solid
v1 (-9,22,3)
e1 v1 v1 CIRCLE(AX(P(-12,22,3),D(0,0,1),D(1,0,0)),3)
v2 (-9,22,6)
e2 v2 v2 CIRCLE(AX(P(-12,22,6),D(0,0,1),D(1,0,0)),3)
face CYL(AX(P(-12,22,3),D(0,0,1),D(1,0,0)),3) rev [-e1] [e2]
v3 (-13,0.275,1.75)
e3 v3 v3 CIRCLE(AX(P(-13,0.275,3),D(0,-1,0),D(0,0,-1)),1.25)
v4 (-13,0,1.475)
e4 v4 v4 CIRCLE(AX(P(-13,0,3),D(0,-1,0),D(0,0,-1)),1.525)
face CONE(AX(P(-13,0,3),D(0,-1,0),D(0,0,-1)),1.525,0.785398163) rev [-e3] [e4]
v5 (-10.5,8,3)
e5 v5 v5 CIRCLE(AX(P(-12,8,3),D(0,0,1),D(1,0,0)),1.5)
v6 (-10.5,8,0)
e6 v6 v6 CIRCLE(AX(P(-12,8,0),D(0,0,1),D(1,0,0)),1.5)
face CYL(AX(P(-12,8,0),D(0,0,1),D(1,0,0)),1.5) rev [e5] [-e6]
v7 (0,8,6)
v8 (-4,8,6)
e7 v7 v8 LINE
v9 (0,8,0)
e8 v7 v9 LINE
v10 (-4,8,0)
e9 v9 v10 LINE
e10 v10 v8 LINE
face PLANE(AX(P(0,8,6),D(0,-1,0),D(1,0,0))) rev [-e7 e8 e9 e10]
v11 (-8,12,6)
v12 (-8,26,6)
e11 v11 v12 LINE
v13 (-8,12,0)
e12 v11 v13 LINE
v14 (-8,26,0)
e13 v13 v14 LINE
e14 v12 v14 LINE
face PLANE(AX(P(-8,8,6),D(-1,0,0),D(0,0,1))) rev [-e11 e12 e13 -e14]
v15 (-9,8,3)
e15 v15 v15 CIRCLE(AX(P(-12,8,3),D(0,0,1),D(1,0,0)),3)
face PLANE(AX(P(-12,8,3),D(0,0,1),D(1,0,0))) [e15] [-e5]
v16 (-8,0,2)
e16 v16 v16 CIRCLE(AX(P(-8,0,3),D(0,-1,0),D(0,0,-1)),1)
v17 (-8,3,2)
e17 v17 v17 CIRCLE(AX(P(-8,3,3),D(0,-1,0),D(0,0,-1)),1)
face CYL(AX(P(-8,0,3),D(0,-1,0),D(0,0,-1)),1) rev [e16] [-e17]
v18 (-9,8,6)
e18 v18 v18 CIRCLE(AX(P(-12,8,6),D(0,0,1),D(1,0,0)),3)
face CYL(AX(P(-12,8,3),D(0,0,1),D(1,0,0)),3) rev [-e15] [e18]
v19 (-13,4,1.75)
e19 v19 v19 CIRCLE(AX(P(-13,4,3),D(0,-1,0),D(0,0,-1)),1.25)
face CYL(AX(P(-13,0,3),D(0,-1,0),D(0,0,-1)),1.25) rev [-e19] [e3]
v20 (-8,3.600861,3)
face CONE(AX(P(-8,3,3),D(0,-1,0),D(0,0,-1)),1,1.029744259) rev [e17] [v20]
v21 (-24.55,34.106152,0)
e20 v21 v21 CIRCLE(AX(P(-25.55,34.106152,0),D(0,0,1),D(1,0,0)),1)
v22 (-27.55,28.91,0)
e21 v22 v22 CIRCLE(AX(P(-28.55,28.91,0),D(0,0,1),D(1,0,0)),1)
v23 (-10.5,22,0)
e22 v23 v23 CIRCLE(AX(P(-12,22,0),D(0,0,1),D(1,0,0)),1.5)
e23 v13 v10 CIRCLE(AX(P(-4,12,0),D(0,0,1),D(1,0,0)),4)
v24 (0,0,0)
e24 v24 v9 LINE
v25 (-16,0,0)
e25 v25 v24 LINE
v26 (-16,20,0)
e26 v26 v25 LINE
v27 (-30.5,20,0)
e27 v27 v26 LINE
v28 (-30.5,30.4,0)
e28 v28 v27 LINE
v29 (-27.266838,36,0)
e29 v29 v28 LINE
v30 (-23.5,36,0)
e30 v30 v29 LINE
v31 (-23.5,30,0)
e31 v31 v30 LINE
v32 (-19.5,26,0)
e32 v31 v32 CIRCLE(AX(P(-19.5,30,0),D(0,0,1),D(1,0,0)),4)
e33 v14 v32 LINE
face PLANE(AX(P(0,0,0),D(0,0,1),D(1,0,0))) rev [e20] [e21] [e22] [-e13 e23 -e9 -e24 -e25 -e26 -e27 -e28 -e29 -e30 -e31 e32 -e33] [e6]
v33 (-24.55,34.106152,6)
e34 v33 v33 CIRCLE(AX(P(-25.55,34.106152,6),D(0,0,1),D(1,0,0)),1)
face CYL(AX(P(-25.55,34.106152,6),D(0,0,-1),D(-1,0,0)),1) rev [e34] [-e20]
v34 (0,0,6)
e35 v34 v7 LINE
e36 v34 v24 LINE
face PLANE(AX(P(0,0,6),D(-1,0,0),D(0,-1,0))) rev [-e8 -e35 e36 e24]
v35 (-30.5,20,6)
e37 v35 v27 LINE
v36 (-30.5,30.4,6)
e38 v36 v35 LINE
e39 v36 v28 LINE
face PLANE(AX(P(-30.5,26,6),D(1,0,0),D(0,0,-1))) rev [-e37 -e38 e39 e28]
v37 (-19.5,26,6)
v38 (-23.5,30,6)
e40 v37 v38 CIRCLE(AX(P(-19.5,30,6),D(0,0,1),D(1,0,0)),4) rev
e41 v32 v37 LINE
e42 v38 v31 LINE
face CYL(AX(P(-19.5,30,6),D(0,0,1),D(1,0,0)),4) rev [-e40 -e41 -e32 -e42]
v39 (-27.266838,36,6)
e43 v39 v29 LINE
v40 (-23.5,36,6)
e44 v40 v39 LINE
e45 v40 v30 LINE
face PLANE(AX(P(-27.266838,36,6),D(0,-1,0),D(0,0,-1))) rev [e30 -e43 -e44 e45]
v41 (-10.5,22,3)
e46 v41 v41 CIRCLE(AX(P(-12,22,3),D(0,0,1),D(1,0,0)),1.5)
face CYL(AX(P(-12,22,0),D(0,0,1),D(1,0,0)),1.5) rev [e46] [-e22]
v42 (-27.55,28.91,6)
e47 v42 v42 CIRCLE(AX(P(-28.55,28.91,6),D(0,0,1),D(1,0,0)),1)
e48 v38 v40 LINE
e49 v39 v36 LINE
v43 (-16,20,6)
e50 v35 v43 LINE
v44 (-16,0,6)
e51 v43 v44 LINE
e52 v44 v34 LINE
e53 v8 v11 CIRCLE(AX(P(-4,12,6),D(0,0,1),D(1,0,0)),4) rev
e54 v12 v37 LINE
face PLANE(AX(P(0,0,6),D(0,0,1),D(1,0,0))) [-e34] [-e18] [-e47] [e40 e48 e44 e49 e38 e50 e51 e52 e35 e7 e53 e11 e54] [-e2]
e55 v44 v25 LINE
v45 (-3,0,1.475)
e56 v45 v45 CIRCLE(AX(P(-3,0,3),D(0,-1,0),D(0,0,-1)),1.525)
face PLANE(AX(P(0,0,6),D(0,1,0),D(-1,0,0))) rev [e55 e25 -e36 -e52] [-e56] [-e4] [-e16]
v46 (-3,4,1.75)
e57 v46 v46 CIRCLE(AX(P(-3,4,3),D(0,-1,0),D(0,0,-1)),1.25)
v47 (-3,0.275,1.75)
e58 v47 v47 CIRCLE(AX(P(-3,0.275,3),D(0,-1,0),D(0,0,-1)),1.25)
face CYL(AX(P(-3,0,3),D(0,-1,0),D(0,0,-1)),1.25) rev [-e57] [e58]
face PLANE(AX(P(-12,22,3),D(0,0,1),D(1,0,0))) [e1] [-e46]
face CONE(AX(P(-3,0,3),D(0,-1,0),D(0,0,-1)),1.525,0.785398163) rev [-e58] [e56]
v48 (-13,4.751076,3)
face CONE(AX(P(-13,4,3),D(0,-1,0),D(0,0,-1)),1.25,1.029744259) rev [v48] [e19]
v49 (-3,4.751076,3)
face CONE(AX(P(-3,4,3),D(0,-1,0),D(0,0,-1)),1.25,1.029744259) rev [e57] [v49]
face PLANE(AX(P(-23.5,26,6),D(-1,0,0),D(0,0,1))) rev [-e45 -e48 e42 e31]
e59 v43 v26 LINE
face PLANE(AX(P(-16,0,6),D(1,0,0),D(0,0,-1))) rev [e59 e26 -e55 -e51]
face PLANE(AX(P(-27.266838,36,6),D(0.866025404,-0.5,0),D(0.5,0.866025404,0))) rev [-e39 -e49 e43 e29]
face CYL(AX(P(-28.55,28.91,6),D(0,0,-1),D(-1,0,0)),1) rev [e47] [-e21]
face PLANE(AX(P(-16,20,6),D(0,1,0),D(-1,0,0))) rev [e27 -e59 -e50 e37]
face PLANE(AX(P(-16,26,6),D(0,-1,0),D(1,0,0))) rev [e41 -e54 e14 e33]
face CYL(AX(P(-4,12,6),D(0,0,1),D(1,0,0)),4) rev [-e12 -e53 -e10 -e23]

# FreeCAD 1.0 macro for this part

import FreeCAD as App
import Part
import Sketcher
from FreeCAD import Vector
Q = App.Units.Quantity


def edges_at(feature, points):
    """Names of the edges that pass closest to the given points."""
    edges = feature.Shape.Edges
    near = lambda p: min(range(len(edges)), key=lambda i: edges[i].distToShape(Part.Vertex(*p))[0])
    return sorted({f"Edge{near(p) + 1}" for p in points})

doc = App.newDocument("Part")
params = doc.addObject("Spreadsheet::Sheet", "Params")
for row, (alias, value) in enumerate([
    ("sketch1_diameter", "2 mm"),
    ("sketch1_width", "16 mm"),
    ("sketch1_width2", "8 mm"),
    ("sketch1_height", "20 mm"),
    ("sketch1_height2", "18 mm"),
    ("pad1_length", "6 mm"),
    ("fillet_radius", "4 mm"),
    ("fillet2_radius", "4 mm"),
    ("sketch2_diameter", "6 mm"),
    ("pocket1_length", "3 mm"),
    ("sketch3_diameter", "3 mm"),
    ("sketch4_diameter", "2.5 mm"),
    ("hole_diameter", "2.5 mm"),
    ("hole_depth", "4 mm"),
    ("hole_csink_diameter", "3.05 mm"),
    ("sketch5_diameter", "2 mm"),
    ("hole2_diameter", "2 mm"),
    ("hole2_depth", "3 mm"),
], start=1):
    params.set(f"A{row}", alias)
    params.set(f"B{row}", "=" + value)
    params.setAlias(f"B{row}", alias)

body = doc.addObject("PartDesign::Body", "Body")

# Sketch on XY plane
sketch1 = body.newObject("Sketcher::SketchObject", "Sketch")
sketch1.AttachmentSupport = (doc.getObject("XY_Plane"), [""])
sketch1.MapMode = "FlatFace"
sketch1.addGeometry(Part.LineSegment(Vector(-27.3, 36, 0), Vector(-30.5, 30.4, 0)), False)
sketch1.addGeometry(Part.LineSegment(Vector(-30.5, 30.4, 0), Vector(-30.5, 20, 0)), False)
sketch1.addGeometry(Part.LineSegment(Vector(-30.5, 20, 0), Vector(-16, 20, 0)), False)
sketch1.addGeometry(Part.LineSegment(Vector(-16, 20, 0), Vector(-16, 0, 0)), False)
sketch1.addGeometry(Part.LineSegment(Vector(-16, 0, 0), Vector(0, 0, 0)), False)
sketch1.addGeometry(Part.LineSegment(Vector(0, 0, 0), Vector(0, 8, 0)), False)
sketch1.addGeometry(Part.LineSegment(Vector(0, 8, 0), Vector(-8, 8, 0)), False)
sketch1.addGeometry(Part.LineSegment(Vector(-8, 8, 0), Vector(-8, 26, 0)), False)
sketch1.addGeometry(Part.LineSegment(Vector(-8, 26, 0), Vector(-23.5, 26, 0)), False)
sketch1.addGeometry(Part.LineSegment(Vector(-23.5, 26, 0), Vector(-23.5, 36, 0)), False)
sketch1.addGeometry(Part.LineSegment(Vector(-23.5, 36, 0), Vector(-27.3, 36, 0)), False)
sketch1.addGeometry(Part.Circle(Vector(-28.6, 28.9, 0), Vector(0, 0, 1), 1), False)
sketch1.addGeometry(Part.Circle(Vector(-25.6, 34.1, 0), Vector(0, 0, 1), 1), False)
sketch1.addConstraint(Sketcher.Constraint("Coincident", 0, 2, 1, 1))
sketch1.addConstraint(Sketcher.Constraint("Coincident", 1, 2, 2, 1))
sketch1.addConstraint(Sketcher.Constraint("Coincident", 2, 2, 3, 1))
sketch1.addConstraint(Sketcher.Constraint("Coincident", 3, 2, 4, 1))
sketch1.addConstraint(Sketcher.Constraint("Coincident", 4, 2, 5, 1))
sketch1.addConstraint(Sketcher.Constraint("Coincident", 5, 2, 6, 1))
sketch1.addConstraint(Sketcher.Constraint("Coincident", 6, 2, 7, 1))
sketch1.addConstraint(Sketcher.Constraint("Coincident", 7, 2, 8, 1))
sketch1.addConstraint(Sketcher.Constraint("Coincident", 8, 2, 9, 1))
sketch1.addConstraint(Sketcher.Constraint("Coincident", 9, 2, 10, 1))
sketch1.addConstraint(Sketcher.Constraint("Coincident", 10, 2, 0, 1))
sketch1.addConstraint(Sketcher.Constraint("Vertical", 1))
sketch1.addConstraint(Sketcher.Constraint("Horizontal", 2))
sketch1.addConstraint(Sketcher.Constraint("Vertical", 3))
sketch1.addConstraint(Sketcher.Constraint("Horizontal", 4))
sketch1.addConstraint(Sketcher.Constraint("Vertical", 5))
sketch1.addConstraint(Sketcher.Constraint("Horizontal", 6))
sketch1.addConstraint(Sketcher.Constraint("Vertical", 7))
sketch1.addConstraint(Sketcher.Constraint("Horizontal", 8))
sketch1.addConstraint(Sketcher.Constraint("Vertical", 9))
sketch1.addConstraint(Sketcher.Constraint("Horizontal", 10))
sketch1.addConstraint(Sketcher.Constraint("Coincident", 4, 2, -1, 1))
sketch1.addConstraint(Sketcher.Constraint("Equal", 11, 12))
sketch1.addConstraint(Sketcher.Constraint("Equal", 6, 5))
sketch1.addConstraint(Sketcher.Constraint("Diameter", 11, Q("2 mm")))
sketch1.addConstraint(Sketcher.Constraint("DistanceX", 4, 1, 4, 2, Q("16 mm")))
sketch1.addConstraint(Sketcher.Constraint("DistanceX", 6, 2, 6, 1, Q("8 mm")))
sketch1.addConstraint(Sketcher.Constraint("DistanceY", 3, 2, 3, 1, Q("20 mm")))
sketch1.addConstraint(Sketcher.Constraint("DistanceY", 7, 1, 7, 2, Q("18 mm")))
sketch1.addConstraint(Sketcher.Constraint("DistanceY", 9, 1, 9, 2, Q("10 mm")))
sketch1.addConstraint(Sketcher.Constraint("Angle", 0, Q("-120 deg")))
sketch1.addConstraint(Sketcher.Constraint("DistanceX", 2, 1, 2, 2, Q("14.5 mm")))
sketch1.addConstraint(Sketcher.Constraint("DistanceX", 8, 2, 8, 1, Q("15.5 mm")))
sketch1.addConstraint(Sketcher.Constraint("DistanceY", 1, 2, 1, 1, Q("10.4 mm")))
sketch1.addConstraint(Sketcher.Constraint("DistanceX", 11, 3, 12, 3, Q("3 mm")))
sketch1.addConstraint(Sketcher.Constraint("DistanceX", 11, 3, -1, 1, Q("28.55 mm")))
sketch1.addConstraint(Sketcher.Constraint("DistanceY", -1, 1, 11, 3, Q("28.91 mm")))
sketch1.addConstraint(Sketcher.Constraint("DistanceY", -1, 1, 12, 3, Q("34.106152 mm")))
sketch1.setExpression("Constraints[24]", "Params.sketch1_diameter")
sketch1.setExpression("Constraints[25]", "Params.sketch1_width")
sketch1.setExpression("Constraints[26]", "Params.sketch1_width2")
sketch1.setExpression("Constraints[27]", "Params.sketch1_height")
sketch1.setExpression("Constraints[28]", "Params.sketch1_height2")
pad1 = body.newObject("PartDesign::Pad", "Pad")
pad1.Profile = sketch1
pad1.setExpression("Length", "Params.pad1_length")
doc.recompute()

fillet = body.newObject("PartDesign::Fillet", "Fillet")
fillet.Base = (pad1, edges_at(pad1, [(-23.5, 26, 3)]))
fillet.setExpression("Radius", "Params.fillet_radius")
doc.recompute()

fillet2 = body.newObject("PartDesign::Fillet", "Fillet001")
fillet2.Base = (fillet, edges_at(fillet, [(-8, 8, 3)]))
fillet2.setExpression("Radius", "Params.fillet2_radius")

# Sketch on XY plane
sketch2 = body.newObject("Sketcher::SketchObject", "Sketch001")
sketch2.AttachmentSupport = (doc.getObject("XY_Plane"), [""])
sketch2.MapMode = "FlatFace"
sketch2.AttachmentOffset = App.Placement(Vector(0, 0, 6), App.Rotation())
sketch2.addGeometry(Part.Circle(Vector(-12, 22, 0), Vector(0, 0, 1), 3), False)
sketch2.addGeometry(Part.Circle(Vector(-12, 8, 0), Vector(0, 0, 1), 3), False)
sketch2.addConstraint(Sketcher.Constraint("Equal", 0, 1))
sketch2.addConstraint(Sketcher.Constraint("Vertical", 0, 3, 1, 3))
sketch2.addConstraint(Sketcher.Constraint("Diameter", 0, Q("6 mm")))
sketch2.addConstraint(Sketcher.Constraint("DistanceX", 0, 3, -1, 1, Q("12 mm")))
sketch2.addConstraint(Sketcher.Constraint("DistanceY", -1, 1, 0, 3, Q("22 mm")))
sketch2.addConstraint(Sketcher.Constraint("DistanceY", -1, 1, 1, 3, Q("8 mm")))
sketch2.setExpression("Constraints[2]", "Params.sketch2_diameter")
pocket1 = body.newObject("PartDesign::Pocket", "Pocket")
pocket1.Profile = sketch2
pocket1.setExpression("Length", "Params.pocket1_length")

# Sketch on XY plane
sketch3 = body.newObject("Sketcher::SketchObject", "Sketch002")
sketch3.AttachmentSupport = (doc.getObject("XY_Plane"), [""])
sketch3.MapMode = "FlatFace"
sketch3.AttachmentOffset = App.Placement(Vector(0, 0, 3), App.Rotation())
sketch3.addGeometry(Part.Circle(Vector(-12, 22, 0), Vector(0, 0, 1), 1.5), False)
sketch3.addGeometry(Part.Circle(Vector(-12, 8, 0), Vector(0, 0, 1), 1.5), False)
sketch3.addConstraint(Sketcher.Constraint("Equal", 0, 1))
sketch3.addConstraint(Sketcher.Constraint("Vertical", 0, 3, 1, 3))
sketch3.addConstraint(Sketcher.Constraint("Diameter", 0, Q("3 mm")))
sketch3.addConstraint(Sketcher.Constraint("DistanceX", 0, 3, -1, 1, Q("12 mm")))
sketch3.addConstraint(Sketcher.Constraint("DistanceY", -1, 1, 0, 3, Q("22 mm")))
sketch3.addConstraint(Sketcher.Constraint("DistanceY", -1, 1, 1, 3, Q("8 mm")))
sketch3.setExpression("Constraints[2]", "Params.sketch3_diameter")
pocket2 = body.newObject("PartDesign::Pocket", "Pocket001")
pocket2.Profile = sketch3
pocket2.Type = "ThroughAll"

# Sketch on XZ plane
sketch4 = body.newObject("Sketcher::SketchObject", "Sketch003")
sketch4.AttachmentSupport = (doc.getObject("XZ_Plane"), [""])
sketch4.MapMode = "FlatFace"
sketch4.addGeometry(Part.Circle(Vector(-13, 3, 0), Vector(0, 0, 1), 1.2), False)
sketch4.addGeometry(Part.Circle(Vector(-3, 3, 0), Vector(0, 0, 1), 1.2), False)
sketch4.addConstraint(Sketcher.Constraint("Equal", 0, 1))
sketch4.addConstraint(Sketcher.Constraint("Horizontal", 0, 3, 1, 3))
sketch4.addConstraint(Sketcher.Constraint("Diameter", 0, Q("2.5 mm")))
sketch4.addConstraint(Sketcher.Constraint("DistanceX", 0, 3, -1, 1, Q("13 mm")))
sketch4.addConstraint(Sketcher.Constraint("DistanceY", -1, 1, 0, 3, Q("3 mm")))
sketch4.addConstraint(Sketcher.Constraint("DistanceX", 1, 3, -1, 1, Q("3 mm")))
sketch4.setExpression("Constraints[2]", "Params.sketch4_diameter")
doc.recompute()
hole = body.newObject("PartDesign::Hole", "Hole")
hole.Profile = sketch4
hole.ThreadType = "None"
hole.setExpression("Diameter", "Params.hole_diameter")
hole.DepthType = "Dimension"
hole.setExpression("Depth", "Params.hole_depth")
hole.DrillPoint = "Angled"
hole.DrillPointAngle = 118
hole.HoleCutType = "Countersink"
hole.setExpression("HoleCutDiameter", "Params.hole_csink_diameter")
hole.HoleCutCountersinkAngle = 90

# Sketch on XZ plane
sketch5 = body.newObject("Sketcher::SketchObject", "Sketch004")
sketch5.AttachmentSupport = (doc.getObject("XZ_Plane"), [""])
sketch5.MapMode = "FlatFace"
sketch5.addGeometry(Part.Circle(Vector(-8, 3, 0), Vector(0, 0, 1), 1), False)
sketch5.addConstraint(Sketcher.Constraint("Diameter", 0, Q("2 mm")))
sketch5.addConstraint(Sketcher.Constraint("DistanceX", 0, 3, -1, 1, Q("8 mm")))
sketch5.addConstraint(Sketcher.Constraint("DistanceY", -1, 1, 0, 3, Q("3 mm")))
sketch5.setExpression("Constraints[0]", "Params.sketch5_diameter")
doc.recompute()
hole2 = body.newObject("PartDesign::Hole", "Hole001")
hole2.Profile = sketch5
hole2.ThreadType = "None"
hole2.setExpression("Diameter", "Params.hole2_diameter")
hole2.DepthType = "Dimension"
hole2.setExpression("Depth", "Params.hole2_depth")
hole2.DrillPoint = "Angled"
hole2.DrillPointAngle = 118

doc.recompute()
